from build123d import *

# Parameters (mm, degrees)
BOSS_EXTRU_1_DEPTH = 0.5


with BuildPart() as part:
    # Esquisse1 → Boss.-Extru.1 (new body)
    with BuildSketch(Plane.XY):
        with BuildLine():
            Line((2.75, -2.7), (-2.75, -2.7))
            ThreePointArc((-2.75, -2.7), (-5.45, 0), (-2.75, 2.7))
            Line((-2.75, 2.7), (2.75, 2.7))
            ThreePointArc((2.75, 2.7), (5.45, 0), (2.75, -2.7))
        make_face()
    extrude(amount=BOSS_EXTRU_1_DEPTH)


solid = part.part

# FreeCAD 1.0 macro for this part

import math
import FreeCAD as App
import Part
import Sketcher
from FreeCAD import Vector
Q = App.Units.Quantity

doc = App.newDocument("Part")
params = doc.addObject("Spreadsheet::Sheet", "Params")
for row, (alias, value) in enumerate([
    ("sketch1_radius", "2.7 mm"),
    ("sketch1_width", "5.5 mm"),
    ("pad1_length", "0.5 mm"),
], start=1):
    params.set(f"A{row}", alias)
    params.set(f"B{row}", "=" + value)
    params.setAlias(f"B{row}", alias)

body = doc.addObject("PartDesign::Body", "Body")

sketch1 = doc.addObject("Sketcher::SketchObject", "Sketch")
body.addObject(sketch1)
sketch1.AttachmentSupport = (doc.XY_Plane, [""])
sketch1.MapMode = "FlatFace"
sketch1.addGeometry(Part.LineSegment(Vector(-2.75, -2.7, 0), Vector(2.75, -2.7, 0)), False)
sketch1.addGeometry(Part.ArcOfCircle(Part.Circle(Vector(2.75, 0, 0), Vector(0, 0, 1), 2.7), math.radians(-90), math.radians(90)), False)
sketch1.addGeometry(Part.LineSegment(Vector(2.75, 2.7, 0), Vector(-2.75, 2.7, 0)), False)
sketch1.addGeometry(Part.ArcOfCircle(Part.Circle(Vector(-2.75, 0, 0), Vector(0, 0, 1), 2.7), math.radians(90), math.radians(270)), False)
sketch1.addConstraint(Sketcher.Constraint("Tangent", 0, 2, 1, 1))
sketch1.addConstraint(Sketcher.Constraint("Tangent", 1, 2, 2, 1))
sketch1.addConstraint(Sketcher.Constraint("Tangent", 2, 2, 3, 1))
sketch1.addConstraint(Sketcher.Constraint("Tangent", 3, 2, 0, 1))
sketch1.addConstraint(Sketcher.Constraint("Horizontal", 0))
sketch1.addConstraint(Sketcher.Constraint("Horizontal", 2))
sketch1.addConstraint(Sketcher.Constraint("Symmetric", 1, 3, 3, 3, -1, 1))
sketch1.addConstraint(Sketcher.Constraint("Radius", 1, Q("2.7 mm")))
sketch1.addConstraint(Sketcher.Constraint("DistanceX", 0, 1, 0, 2, Q("5.5 mm")))
sketch1.setExpression("Constraints[7]", "Params.sketch1_radius")
sketch1.setExpression("Constraints[8]", "Params.sketch1_width")
pad1 = doc.addObject("PartDesign::Pad", "Pad")
body.addObject(pad1)
pad1.Profile = sketch1
pad1.setExpression("Length", "Params.pad1_length")

doc.recompute()
